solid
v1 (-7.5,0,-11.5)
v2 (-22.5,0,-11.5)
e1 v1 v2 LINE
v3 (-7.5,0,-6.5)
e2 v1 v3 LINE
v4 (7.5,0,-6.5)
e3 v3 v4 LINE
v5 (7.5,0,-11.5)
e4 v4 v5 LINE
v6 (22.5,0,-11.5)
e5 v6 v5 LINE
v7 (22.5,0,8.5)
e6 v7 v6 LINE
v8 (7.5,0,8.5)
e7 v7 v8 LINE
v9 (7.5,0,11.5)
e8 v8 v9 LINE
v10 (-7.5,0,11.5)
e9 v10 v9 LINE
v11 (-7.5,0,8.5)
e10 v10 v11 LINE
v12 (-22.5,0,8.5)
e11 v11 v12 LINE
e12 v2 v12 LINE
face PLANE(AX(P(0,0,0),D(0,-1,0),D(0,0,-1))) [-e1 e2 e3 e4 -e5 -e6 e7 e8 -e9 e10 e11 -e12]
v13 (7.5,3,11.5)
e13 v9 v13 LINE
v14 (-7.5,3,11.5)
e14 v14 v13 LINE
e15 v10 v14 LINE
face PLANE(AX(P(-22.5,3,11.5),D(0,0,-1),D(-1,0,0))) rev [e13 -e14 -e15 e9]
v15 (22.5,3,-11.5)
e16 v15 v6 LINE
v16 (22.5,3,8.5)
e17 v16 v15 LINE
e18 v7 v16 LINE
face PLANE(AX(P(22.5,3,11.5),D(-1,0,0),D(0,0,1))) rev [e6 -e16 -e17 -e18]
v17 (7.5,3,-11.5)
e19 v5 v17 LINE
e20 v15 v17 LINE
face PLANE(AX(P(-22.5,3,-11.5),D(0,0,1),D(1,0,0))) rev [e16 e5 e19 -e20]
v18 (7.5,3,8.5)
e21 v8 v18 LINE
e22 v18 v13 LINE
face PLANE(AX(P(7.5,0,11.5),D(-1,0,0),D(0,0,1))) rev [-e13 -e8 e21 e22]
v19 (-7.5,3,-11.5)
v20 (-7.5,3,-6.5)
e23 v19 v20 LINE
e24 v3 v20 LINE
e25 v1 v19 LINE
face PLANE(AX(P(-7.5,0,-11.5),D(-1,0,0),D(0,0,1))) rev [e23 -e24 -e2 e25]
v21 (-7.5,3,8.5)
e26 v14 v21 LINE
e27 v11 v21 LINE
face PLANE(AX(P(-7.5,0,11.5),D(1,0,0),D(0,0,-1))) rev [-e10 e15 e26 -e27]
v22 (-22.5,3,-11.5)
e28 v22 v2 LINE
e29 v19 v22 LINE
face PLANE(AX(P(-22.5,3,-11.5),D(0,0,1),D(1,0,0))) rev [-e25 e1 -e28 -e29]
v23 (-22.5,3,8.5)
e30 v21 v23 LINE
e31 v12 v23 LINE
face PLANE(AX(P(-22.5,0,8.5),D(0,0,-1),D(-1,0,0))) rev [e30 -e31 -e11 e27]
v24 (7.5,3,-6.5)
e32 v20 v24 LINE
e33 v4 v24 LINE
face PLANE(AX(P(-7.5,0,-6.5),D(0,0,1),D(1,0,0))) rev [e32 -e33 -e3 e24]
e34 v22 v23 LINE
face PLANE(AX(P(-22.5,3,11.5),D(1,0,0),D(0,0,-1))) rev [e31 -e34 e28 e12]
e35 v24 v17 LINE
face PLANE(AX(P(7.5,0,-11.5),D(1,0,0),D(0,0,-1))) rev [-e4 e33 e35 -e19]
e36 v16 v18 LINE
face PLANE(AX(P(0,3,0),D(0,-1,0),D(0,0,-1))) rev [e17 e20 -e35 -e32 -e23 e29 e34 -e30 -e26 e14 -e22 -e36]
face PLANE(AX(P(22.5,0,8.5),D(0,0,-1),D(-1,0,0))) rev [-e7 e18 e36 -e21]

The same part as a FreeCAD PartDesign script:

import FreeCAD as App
import Part
import Sketcher

V = App.Vector

doc = App.newDocument("Part")
body = doc.addObject("PartDesign::Body", "Body")

# Sketch on XZ plane
sketch1 = body.newObject("Sketcher::SketchObject", "Sketch")
sketch1.AttachmentSupport = (doc.getObject("XZ_Plane"), [""])
sketch1.MapMode = "FlatFace"
sketch1.addGeometry([
    Part.LineSegment(V(-22, -12, 0), V(-22, 12, 0)),
    Part.LineSegment(V(-22, 12, 0), V(22, 12, 0)),
    Part.LineSegment(V(22, 12, 0), V(22, -12, 0)),
    Part.LineSegment(V(22, -12, 0), V(-22, -12, 0)),
], False)
sketch1.addConstraint([
    Sketcher.Constraint("Coincident", 0, 2, 1, 1),
    Sketcher.Constraint("Coincident", 1, 2, 2, 1),
    Sketcher.Constraint("Coincident", 2, 2, 3, 1),
    Sketcher.Constraint("Coincident", 3, 2, 0, 1),
    Sketcher.Constraint("Vertical", 0),
    Sketcher.Constraint("Horizontal", 1),
    Sketcher.Constraint("Vertical", 2),
    Sketcher.Constraint("Horizontal", 3),
    Sketcher.Constraint("Symmetric", 0, 2, 2, 2, -1, 1),
    Sketcher.Constraint("DistanceX", 1, 1, 1, 2, 45.0),
    Sketcher.Constraint("DistanceY", 0, 1, 0, 2, 23.0),
])
pad1 = body.newObject("PartDesign::Pad", "Pad")
pad1.Profile = sketch1
pad1.Length = 3
pad1.Reversed = True

# Sketch on XZ plane
sketch2 = body.newObject("Sketcher::SketchObject", "Sketch001")
sketch2.AttachmentSupport = (doc.getObject("XZ_Plane"), [""])
sketch2.MapMode = "FlatFace"
sketch2.AttachmentOffset = App.Placement(V(0, 0, -3), App.Rotation())
sketch2.addGeometry([
    Part.LineSegment(V(-8, -12, 0), V(-8, -6, 0)),
    Part.LineSegment(V(-8, -6, 0), V(8, -6, 0)),
    Part.LineSegment(V(8, -6, 0), V(8, -12, 0)),
    Part.LineSegment(V(8, -12, 0), V(-8, -12, 0)),
], False)
sketch2.addConstraint([
    Sketcher.Constraint("Coincident", 0, 2, 1, 1),
    Sketcher.Constraint("Coincident", 1, 2, 2, 1),
    Sketcher.Constraint("Coincident", 2, 2, 3, 1),
    Sketcher.Constraint("Coincident", 3, 2, 0, 1),
    Sketcher.Constraint("Vertical", 0),
    Sketcher.Constraint("Horizontal", 1),
    Sketcher.Constraint("Vertical", 2),
    Sketcher.Constraint("Horizontal", 3),
    Sketcher.Constraint("DistanceX", 1, 1, 1, 2, 15.0),
    Sketcher.Constraint("DistanceY", 0, 1, 0, 2, 5.0),
    Sketcher.Constraint("DistanceX", 0, 2, -1, 1, 7.5),
    Sketcher.Constraint("DistanceY", 0, 2, -1, 1, 6.5),
])
pocket1 = body.newObject("PartDesign::Pocket", "Pocket")
pocket1.Profile = sketch2
pocket1.Length = 3
pocket1.Reversed = True

# Sketch on XZ plane
sketch3 = body.newObject("Sketcher::SketchObject", "Sketch002")
sketch3.AttachmentSupport = (doc.getObject("XZ_Plane"), [""])
sketch3.MapMode = "FlatFace"
sketch3.AttachmentOffset = App.Placement(V(0, 0, -3), App.Rotation())
sketch3.addGeometry([
    Part.LineSegment(V(-22.5, 8.5, 0), V(-22.5, 11.5, 0)),  # 0
    Part.LineSegment(V(-22.5, 11.5, 0), V(-7.5, 11.5, 0)),  # 1
    Part.LineSegment(V(-7.5, 11.5, 0), V(-7.5, 8.5, 0)),  # 2
    Part.LineSegment(V(-7.5, 8.5, 0), V(-22.5, 8.5, 0)),  # 3
    Part.LineSegment(V(7.5, 8.5, 0), V(7.5, 11.5, 0)),  # 4
    Part.LineSegment(V(7.5, 11.5, 0), V(22.5, 11.5, 0)),  # 5
    Part.LineSegment(V(22.5, 11.5, 0), V(22.5, 8.5, 0)),  # 6
    Part.LineSegment(V(22.5, 8.5, 0), V(7.5, 8.5, 0)),  # 7
], False)
sketch3.addConstraint([
    Sketcher.Constraint("Coincident", 0, 2, 1, 1),
    Sketcher.Constraint("Coincident", 1, 2, 2, 1),
    Sketcher.Constraint("Coincident", 2, 2, 3, 1),
    Sketcher.Constraint("Coincident", 3, 2, 0, 1),
    Sketcher.Constraint("Coincident", 4, 2, 5, 1),
    Sketcher.Constraint("Coincident", 5, 2, 6, 1),
    Sketcher.Constraint("Coincident", 6, 2, 7, 1),
    Sketcher.Constraint("Coincident", 7, 2, 4, 1),
    Sketcher.Constraint("Vertical", 0),
    Sketcher.Constraint("Horizontal", 1),
    Sketcher.Constraint("Vertical", 2),
    Sketcher.Constraint("Horizontal", 3),
    Sketcher.Constraint("Vertical", 4),
    Sketcher.Constraint("Horizontal", 5),
    Sketcher.Constraint("Vertical", 6),
    Sketcher.Constraint("Horizontal", 7),
    Sketcher.Constraint("Symmetric", 1, 2, 4, 2, -2),
    Sketcher.Constraint("Symmetric", 3, 2, 6, 2, -2),
    Sketcher.Constraint("DistanceX", 1, 1, 1, 2, 15.0),
    Sketcher.Constraint("DistanceY", 0, 1, 0, 2, 3.0),
    Sketcher.Constraint("DistanceX", 1, 2, 4, 2, 15.0),
    Sketcher.Constraint("DistanceY", -1, 1, 0, 2, 11.5),
])
pocket2 = body.newObject("PartDesign::Pocket", "Pocket001")
pocket2.Profile = sketch3
pocket2.Length = 3
pocket2.Reversed = True

doc.recompute()
